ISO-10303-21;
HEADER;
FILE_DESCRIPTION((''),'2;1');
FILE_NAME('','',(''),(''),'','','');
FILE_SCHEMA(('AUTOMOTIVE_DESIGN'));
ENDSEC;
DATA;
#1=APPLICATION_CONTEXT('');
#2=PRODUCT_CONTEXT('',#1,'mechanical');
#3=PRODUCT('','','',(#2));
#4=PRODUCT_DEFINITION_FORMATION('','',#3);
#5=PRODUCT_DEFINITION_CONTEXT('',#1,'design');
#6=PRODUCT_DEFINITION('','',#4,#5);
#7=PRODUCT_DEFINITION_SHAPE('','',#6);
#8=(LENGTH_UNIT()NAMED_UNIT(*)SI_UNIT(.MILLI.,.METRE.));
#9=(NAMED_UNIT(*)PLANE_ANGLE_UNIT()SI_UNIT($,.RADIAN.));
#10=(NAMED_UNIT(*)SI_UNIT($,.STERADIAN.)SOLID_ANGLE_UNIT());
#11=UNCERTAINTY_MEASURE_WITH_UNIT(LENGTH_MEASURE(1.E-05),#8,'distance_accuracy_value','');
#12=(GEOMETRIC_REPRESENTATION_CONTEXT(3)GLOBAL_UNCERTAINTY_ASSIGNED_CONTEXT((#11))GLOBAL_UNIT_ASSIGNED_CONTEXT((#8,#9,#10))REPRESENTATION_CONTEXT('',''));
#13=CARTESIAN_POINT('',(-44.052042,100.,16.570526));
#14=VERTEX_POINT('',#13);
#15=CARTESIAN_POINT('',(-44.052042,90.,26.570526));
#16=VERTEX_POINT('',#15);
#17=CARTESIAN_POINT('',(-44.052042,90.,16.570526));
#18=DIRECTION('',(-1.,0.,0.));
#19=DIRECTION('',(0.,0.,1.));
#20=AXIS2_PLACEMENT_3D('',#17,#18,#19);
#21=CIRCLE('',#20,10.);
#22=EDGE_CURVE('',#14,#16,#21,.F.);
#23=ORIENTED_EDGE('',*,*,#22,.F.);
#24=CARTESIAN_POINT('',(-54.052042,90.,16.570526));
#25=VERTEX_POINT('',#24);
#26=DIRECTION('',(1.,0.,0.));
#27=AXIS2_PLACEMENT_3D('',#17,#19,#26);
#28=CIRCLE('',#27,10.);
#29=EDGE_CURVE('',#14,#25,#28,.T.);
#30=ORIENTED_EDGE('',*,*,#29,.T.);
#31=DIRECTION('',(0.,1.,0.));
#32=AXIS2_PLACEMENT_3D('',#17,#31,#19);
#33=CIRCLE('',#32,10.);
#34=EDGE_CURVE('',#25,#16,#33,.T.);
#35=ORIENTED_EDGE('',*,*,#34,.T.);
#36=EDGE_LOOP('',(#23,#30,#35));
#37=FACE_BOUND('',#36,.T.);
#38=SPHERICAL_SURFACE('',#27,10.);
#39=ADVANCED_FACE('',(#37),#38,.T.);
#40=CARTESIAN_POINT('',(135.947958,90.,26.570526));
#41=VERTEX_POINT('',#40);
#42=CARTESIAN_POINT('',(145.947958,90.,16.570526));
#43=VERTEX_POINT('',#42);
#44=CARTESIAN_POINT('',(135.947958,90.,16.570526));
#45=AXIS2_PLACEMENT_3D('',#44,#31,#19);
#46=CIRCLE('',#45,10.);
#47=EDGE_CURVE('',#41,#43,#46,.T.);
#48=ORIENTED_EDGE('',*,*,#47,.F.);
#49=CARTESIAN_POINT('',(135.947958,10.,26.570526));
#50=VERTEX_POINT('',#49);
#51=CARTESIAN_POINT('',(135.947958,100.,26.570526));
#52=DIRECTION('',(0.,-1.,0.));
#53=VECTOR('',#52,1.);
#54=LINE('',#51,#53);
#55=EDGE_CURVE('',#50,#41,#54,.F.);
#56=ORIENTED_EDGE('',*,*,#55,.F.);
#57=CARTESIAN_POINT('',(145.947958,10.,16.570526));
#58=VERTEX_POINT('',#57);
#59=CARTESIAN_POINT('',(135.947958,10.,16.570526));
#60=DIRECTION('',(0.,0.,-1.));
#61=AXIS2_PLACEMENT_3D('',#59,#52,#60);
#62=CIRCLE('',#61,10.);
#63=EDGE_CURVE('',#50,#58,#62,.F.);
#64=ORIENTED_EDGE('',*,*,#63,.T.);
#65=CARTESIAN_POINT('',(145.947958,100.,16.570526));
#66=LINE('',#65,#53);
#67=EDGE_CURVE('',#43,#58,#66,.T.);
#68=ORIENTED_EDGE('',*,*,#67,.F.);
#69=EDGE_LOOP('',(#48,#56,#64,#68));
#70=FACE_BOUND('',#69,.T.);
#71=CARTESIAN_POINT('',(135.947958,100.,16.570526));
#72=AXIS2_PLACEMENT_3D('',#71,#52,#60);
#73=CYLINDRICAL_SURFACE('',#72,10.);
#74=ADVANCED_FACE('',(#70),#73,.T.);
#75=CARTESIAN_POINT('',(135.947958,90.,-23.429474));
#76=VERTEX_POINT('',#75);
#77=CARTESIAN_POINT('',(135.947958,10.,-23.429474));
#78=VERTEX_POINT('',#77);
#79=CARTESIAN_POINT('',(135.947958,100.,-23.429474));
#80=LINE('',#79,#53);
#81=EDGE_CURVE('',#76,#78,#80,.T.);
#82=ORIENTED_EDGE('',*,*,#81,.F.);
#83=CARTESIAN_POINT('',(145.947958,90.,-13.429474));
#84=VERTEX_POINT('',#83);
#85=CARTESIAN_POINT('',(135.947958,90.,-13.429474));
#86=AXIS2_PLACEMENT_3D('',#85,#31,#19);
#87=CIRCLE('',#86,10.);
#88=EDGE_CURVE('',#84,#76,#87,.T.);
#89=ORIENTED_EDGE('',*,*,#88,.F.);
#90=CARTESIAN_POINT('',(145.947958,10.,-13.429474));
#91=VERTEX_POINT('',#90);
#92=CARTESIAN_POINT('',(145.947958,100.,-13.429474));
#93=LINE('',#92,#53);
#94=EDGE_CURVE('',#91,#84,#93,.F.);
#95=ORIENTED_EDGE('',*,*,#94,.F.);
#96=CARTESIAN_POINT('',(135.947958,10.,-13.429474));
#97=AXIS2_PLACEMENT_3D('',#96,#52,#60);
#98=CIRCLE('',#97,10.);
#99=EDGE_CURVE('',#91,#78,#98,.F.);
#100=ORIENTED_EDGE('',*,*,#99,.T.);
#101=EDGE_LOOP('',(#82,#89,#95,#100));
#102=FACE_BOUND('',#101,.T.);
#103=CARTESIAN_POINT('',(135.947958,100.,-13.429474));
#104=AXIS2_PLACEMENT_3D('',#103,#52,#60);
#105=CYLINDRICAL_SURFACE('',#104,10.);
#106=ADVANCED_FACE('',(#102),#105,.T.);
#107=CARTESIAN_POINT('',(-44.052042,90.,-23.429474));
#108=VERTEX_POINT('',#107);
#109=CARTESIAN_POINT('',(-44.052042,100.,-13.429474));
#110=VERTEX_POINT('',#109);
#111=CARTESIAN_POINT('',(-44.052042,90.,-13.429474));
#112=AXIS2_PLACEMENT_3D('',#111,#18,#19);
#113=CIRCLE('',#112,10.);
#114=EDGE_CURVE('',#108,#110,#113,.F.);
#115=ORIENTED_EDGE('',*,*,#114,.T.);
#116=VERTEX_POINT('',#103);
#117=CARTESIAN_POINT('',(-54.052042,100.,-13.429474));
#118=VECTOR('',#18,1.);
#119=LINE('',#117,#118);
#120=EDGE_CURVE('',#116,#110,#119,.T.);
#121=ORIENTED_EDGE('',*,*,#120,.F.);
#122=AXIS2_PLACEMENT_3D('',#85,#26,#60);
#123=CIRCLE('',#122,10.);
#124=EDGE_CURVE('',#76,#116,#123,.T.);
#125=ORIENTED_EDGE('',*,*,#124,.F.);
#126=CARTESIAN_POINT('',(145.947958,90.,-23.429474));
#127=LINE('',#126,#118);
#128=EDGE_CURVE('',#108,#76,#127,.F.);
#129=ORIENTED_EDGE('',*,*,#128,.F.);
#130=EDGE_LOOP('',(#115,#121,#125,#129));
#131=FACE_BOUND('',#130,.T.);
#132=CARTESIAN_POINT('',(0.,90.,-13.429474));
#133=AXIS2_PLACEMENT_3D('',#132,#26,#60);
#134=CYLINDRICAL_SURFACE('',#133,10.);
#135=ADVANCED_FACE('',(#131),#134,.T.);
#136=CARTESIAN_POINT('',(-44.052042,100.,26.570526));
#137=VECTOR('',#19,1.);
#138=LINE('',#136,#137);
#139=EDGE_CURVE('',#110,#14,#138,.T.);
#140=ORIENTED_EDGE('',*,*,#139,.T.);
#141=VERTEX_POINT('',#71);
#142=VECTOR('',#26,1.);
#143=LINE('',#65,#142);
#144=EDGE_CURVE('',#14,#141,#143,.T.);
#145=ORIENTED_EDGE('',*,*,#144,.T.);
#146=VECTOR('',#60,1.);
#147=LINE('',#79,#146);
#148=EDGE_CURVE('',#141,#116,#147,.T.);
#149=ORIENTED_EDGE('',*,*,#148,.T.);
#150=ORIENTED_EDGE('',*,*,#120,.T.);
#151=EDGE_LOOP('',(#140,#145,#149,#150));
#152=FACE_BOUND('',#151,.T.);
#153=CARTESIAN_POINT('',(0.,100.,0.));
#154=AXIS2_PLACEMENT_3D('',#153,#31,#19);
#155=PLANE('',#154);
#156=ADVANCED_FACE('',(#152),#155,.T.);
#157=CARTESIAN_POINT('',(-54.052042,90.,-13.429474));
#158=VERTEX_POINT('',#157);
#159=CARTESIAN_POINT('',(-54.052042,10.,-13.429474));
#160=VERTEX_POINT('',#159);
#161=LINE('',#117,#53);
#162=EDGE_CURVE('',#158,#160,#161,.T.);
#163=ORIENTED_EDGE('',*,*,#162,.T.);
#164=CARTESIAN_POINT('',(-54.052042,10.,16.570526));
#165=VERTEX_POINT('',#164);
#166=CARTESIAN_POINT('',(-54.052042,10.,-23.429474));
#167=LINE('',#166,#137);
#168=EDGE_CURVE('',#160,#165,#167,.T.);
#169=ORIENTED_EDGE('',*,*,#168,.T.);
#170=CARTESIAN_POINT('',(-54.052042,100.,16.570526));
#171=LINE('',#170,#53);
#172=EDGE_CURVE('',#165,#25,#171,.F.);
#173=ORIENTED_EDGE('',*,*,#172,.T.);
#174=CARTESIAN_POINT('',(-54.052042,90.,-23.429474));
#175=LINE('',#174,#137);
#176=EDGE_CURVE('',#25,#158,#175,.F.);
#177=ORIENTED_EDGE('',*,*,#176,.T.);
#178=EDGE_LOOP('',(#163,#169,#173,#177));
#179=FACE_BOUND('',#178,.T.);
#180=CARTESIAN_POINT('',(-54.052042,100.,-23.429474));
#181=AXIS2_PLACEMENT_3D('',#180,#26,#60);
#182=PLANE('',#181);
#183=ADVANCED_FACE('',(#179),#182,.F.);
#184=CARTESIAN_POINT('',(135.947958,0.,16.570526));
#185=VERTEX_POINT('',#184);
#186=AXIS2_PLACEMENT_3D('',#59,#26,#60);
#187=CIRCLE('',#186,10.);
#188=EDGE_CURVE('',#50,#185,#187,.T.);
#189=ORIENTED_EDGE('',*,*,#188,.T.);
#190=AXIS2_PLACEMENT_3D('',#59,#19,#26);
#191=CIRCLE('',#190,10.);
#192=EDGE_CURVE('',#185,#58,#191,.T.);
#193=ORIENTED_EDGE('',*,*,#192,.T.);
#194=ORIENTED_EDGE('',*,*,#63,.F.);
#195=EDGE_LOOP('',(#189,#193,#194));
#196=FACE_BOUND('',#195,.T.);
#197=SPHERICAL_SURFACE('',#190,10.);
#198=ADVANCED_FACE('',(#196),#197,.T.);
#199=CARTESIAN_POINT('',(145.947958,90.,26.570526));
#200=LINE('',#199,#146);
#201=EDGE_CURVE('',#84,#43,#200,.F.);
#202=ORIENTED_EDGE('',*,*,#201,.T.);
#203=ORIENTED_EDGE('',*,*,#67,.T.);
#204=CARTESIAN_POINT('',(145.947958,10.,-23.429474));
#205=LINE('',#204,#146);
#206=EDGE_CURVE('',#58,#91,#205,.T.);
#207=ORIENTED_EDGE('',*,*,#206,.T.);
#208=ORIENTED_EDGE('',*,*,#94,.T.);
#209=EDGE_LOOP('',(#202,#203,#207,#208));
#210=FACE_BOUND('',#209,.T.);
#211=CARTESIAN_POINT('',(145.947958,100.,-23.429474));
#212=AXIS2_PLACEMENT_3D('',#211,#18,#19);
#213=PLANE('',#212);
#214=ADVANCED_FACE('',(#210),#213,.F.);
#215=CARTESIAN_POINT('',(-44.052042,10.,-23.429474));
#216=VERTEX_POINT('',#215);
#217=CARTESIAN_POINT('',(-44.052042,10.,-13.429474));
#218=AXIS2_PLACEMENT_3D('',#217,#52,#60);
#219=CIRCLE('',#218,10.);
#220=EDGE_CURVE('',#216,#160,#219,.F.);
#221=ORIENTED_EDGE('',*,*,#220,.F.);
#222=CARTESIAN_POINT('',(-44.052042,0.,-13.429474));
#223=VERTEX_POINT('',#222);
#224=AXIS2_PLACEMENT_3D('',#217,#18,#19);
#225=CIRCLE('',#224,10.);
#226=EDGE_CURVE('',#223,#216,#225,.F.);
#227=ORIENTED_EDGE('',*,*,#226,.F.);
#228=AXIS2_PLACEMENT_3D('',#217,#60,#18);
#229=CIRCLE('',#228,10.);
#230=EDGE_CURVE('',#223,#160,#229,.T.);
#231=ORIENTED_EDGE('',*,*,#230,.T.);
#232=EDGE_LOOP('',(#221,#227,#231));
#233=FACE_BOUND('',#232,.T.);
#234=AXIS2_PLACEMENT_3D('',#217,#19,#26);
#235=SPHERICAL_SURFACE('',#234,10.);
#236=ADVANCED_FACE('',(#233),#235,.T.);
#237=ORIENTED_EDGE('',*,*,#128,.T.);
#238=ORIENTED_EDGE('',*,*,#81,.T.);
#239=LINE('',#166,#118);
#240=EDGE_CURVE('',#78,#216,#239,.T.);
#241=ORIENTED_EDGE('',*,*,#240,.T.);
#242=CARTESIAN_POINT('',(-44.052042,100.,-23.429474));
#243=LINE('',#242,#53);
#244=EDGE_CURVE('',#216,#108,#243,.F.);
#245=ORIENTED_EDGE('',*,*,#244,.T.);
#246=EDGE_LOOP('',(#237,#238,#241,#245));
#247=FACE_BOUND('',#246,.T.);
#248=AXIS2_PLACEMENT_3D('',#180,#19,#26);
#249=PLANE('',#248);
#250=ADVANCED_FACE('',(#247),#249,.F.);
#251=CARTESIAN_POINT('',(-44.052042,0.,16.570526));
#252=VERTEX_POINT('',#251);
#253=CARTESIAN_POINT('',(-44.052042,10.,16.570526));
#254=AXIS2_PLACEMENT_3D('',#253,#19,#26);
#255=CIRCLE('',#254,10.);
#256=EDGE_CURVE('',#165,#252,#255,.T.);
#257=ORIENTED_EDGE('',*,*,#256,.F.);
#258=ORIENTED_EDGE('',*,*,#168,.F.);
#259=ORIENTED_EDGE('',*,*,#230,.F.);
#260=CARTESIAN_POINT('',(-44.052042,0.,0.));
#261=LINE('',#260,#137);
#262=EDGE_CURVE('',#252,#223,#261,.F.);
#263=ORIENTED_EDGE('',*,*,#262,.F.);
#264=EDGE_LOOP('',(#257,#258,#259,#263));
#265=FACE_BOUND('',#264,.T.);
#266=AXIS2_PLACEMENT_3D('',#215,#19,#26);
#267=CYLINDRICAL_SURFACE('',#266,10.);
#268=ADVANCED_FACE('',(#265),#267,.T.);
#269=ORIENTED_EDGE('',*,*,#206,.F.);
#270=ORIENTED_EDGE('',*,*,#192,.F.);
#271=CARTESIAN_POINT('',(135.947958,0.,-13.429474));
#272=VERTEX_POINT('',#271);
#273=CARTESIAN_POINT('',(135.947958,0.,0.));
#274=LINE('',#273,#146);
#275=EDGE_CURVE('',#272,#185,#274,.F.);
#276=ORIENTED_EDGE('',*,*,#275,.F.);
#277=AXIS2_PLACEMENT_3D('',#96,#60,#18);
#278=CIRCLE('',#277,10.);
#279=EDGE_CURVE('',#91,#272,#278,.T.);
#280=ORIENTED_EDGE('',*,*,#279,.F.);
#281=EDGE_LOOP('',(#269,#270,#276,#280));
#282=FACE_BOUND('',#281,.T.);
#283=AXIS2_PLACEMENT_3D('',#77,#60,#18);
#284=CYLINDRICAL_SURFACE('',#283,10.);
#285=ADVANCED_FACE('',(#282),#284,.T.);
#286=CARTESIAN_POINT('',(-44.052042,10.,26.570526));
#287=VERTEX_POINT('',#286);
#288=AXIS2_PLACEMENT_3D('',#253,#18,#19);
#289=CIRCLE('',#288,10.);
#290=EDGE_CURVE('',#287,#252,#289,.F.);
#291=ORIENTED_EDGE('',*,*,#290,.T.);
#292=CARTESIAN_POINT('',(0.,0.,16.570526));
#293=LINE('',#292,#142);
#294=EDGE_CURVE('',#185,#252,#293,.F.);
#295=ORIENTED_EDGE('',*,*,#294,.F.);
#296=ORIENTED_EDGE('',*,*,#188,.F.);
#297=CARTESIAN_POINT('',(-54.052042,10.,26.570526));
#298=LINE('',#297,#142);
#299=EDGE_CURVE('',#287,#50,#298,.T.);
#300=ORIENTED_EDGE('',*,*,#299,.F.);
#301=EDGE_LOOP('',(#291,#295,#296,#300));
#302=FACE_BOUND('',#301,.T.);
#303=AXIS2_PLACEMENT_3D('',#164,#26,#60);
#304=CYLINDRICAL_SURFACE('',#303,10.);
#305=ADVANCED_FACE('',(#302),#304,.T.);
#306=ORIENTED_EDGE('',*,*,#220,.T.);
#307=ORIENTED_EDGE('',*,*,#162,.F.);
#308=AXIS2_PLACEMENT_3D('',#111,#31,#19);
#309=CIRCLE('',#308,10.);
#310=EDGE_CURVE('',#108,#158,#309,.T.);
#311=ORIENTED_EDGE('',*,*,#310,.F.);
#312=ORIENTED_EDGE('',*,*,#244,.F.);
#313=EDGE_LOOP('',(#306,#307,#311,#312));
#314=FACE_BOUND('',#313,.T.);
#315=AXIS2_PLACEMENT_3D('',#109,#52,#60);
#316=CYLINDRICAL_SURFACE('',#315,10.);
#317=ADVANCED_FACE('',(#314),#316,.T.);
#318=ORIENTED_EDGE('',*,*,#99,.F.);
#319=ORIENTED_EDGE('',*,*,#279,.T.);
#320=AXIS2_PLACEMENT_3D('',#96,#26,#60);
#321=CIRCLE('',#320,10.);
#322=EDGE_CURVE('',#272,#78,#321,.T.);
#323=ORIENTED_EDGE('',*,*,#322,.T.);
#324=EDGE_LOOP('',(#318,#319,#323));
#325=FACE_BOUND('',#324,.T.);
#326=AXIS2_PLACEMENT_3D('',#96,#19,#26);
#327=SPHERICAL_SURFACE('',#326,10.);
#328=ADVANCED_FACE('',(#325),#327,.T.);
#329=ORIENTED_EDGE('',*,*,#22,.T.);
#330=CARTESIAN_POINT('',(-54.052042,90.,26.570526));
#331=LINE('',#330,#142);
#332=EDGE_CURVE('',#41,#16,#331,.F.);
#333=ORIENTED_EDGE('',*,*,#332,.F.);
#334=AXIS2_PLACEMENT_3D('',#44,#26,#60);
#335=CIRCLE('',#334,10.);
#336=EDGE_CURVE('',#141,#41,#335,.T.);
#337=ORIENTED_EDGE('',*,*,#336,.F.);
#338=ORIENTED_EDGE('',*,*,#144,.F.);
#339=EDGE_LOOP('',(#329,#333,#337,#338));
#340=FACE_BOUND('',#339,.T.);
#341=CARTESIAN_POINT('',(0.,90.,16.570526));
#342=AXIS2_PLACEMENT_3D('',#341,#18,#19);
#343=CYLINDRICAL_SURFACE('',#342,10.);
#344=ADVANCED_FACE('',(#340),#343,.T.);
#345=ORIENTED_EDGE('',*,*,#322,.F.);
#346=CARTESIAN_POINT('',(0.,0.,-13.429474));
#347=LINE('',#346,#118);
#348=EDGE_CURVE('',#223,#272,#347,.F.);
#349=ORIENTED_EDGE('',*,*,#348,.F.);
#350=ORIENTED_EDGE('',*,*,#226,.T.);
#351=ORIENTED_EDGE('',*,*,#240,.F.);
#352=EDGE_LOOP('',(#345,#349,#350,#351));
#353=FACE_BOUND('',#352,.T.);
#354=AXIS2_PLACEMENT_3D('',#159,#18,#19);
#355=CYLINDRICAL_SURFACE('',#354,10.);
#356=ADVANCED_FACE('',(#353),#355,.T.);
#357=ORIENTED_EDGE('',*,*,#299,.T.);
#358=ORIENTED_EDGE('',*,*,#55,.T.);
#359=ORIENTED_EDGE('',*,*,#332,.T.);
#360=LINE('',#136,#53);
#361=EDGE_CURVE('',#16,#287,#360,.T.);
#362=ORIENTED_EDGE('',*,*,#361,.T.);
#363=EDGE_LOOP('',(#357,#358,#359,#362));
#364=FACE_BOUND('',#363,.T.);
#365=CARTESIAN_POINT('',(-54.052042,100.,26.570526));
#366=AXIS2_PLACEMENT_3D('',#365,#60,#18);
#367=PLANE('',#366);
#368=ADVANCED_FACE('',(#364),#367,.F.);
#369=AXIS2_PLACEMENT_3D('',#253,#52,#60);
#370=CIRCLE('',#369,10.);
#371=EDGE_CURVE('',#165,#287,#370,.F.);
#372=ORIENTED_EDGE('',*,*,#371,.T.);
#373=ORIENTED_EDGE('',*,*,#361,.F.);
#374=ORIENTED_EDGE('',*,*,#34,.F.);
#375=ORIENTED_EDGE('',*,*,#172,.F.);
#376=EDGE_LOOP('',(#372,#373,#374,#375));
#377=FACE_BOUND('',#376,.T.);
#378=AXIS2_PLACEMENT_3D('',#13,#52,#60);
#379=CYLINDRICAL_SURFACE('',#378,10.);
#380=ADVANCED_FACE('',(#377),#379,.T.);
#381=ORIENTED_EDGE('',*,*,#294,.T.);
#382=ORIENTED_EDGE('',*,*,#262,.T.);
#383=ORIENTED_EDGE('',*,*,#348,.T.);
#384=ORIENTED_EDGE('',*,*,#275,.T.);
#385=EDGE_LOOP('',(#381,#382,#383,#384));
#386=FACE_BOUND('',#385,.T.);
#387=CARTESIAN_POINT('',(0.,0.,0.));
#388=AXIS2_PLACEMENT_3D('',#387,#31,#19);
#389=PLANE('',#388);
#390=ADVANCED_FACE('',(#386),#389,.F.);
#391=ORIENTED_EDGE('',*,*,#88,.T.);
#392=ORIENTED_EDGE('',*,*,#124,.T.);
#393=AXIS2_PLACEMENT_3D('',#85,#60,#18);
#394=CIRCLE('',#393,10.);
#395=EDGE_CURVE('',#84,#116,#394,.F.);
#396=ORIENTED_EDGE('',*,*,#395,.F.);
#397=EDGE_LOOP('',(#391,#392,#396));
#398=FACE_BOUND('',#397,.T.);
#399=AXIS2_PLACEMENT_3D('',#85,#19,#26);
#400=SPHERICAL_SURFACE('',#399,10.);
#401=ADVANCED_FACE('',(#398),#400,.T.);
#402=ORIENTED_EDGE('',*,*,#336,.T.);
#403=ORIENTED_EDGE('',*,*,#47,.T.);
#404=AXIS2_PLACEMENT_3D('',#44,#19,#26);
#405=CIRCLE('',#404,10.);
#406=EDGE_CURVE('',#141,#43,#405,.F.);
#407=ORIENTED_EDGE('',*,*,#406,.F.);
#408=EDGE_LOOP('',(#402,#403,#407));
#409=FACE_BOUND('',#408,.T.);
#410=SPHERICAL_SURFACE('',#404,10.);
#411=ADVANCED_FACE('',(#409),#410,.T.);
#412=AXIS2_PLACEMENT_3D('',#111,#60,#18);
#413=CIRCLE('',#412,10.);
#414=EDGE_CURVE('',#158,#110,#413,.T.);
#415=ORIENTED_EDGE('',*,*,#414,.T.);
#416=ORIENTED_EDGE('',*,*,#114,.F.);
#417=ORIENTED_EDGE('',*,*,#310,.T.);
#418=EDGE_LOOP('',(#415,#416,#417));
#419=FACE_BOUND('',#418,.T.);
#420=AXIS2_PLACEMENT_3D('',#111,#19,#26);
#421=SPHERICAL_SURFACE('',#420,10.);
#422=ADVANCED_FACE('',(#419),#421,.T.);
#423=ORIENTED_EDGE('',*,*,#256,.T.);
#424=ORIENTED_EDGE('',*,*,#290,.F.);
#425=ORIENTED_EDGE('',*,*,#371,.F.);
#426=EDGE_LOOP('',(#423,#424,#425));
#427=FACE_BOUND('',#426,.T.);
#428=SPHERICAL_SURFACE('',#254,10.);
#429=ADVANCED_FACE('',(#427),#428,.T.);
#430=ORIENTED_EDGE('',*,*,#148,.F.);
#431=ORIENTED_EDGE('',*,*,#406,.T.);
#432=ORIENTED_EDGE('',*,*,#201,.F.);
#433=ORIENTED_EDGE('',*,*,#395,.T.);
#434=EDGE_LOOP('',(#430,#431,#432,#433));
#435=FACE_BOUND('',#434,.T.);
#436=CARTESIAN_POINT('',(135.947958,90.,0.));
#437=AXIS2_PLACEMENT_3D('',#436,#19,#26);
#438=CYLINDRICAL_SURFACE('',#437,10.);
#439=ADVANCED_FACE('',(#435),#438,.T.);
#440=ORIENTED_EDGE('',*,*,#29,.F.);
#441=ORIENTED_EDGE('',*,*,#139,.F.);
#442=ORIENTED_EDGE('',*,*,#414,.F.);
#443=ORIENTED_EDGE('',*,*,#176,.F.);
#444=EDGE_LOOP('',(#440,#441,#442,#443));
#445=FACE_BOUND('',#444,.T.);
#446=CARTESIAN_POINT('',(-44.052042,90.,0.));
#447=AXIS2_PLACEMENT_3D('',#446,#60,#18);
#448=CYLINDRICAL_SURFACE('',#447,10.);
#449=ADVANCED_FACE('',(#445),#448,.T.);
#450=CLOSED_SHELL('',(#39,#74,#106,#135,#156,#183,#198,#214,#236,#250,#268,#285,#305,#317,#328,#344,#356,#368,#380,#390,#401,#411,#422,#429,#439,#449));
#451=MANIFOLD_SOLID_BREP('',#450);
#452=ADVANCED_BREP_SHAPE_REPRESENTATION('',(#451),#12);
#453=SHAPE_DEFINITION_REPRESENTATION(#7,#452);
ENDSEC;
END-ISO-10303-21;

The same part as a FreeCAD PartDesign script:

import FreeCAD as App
import Part
import Sketcher
from FreeCAD import Vector
Q = App.Units.Quantity


def add_polygon(sketch, points):
    """Adds a closed chain of lines whose ends are joined by coincident constraints."""
    first, n = sketch.GeometryCount, len(points)
    for a, b in zip(points, points[1:] + points[:1]):
        sketch.addGeometry(Part.LineSegment(App.Vector(*a, 0), App.Vector(*b, 0)), False)
    for i in range(n):
        sketch.addConstraint(Sketcher.Constraint("Coincident", first + i, 2, first + (i + 1) % n, 1))

doc = App.newDocument("Part")
body = doc.addObject("PartDesign::Body", "Body")

sketch1 = doc.addObject("Sketcher::SketchObject", "Sketch")
body.addObject(sketch1)
sketch1.AttachmentSupport = (doc.XZ_Plane, [""])
sketch1.MapMode = "FlatFace"
add_polygon(sketch1, [(-54, -23), (-54, 27), (146, 27), (146, -23)])
sketch1.addConstraint([
    Sketcher.Constraint("Vertical", 0),
    Sketcher.Constraint("Horizontal", 1),
    Sketcher.Constraint("Vertical", 2),
    Sketcher.Constraint("Horizontal", 3),
    Sketcher.Constraint("DistanceX", 1, 1, 1, 2, Q("200 mm")),
    Sketcher.Constraint("DistanceY", 0, 1, 0, 2, Q("50 mm")),
    Sketcher.Constraint("DistanceX", 0, 2, -1, 1, Q("54.052042 mm")),
    Sketcher.Constraint("DistanceY", -1, 1, 0, 2, Q("26.570526 mm")),
])
pad1 = doc.addObject("PartDesign::Pad", "Pad")
body.addObject(pad1)
pad1.Profile = sketch1
pad1.Length = 100
pad1.Reversed = True
doc.recompute()

fillet = doc.addObject("PartDesign::Fillet", "Fillet")
body.addObject(fillet)
fillet.Base = (pad1, ["Edge1"])
fillet.UseAllEdges = True
fillet.Radius = 10

doc.recompute()
